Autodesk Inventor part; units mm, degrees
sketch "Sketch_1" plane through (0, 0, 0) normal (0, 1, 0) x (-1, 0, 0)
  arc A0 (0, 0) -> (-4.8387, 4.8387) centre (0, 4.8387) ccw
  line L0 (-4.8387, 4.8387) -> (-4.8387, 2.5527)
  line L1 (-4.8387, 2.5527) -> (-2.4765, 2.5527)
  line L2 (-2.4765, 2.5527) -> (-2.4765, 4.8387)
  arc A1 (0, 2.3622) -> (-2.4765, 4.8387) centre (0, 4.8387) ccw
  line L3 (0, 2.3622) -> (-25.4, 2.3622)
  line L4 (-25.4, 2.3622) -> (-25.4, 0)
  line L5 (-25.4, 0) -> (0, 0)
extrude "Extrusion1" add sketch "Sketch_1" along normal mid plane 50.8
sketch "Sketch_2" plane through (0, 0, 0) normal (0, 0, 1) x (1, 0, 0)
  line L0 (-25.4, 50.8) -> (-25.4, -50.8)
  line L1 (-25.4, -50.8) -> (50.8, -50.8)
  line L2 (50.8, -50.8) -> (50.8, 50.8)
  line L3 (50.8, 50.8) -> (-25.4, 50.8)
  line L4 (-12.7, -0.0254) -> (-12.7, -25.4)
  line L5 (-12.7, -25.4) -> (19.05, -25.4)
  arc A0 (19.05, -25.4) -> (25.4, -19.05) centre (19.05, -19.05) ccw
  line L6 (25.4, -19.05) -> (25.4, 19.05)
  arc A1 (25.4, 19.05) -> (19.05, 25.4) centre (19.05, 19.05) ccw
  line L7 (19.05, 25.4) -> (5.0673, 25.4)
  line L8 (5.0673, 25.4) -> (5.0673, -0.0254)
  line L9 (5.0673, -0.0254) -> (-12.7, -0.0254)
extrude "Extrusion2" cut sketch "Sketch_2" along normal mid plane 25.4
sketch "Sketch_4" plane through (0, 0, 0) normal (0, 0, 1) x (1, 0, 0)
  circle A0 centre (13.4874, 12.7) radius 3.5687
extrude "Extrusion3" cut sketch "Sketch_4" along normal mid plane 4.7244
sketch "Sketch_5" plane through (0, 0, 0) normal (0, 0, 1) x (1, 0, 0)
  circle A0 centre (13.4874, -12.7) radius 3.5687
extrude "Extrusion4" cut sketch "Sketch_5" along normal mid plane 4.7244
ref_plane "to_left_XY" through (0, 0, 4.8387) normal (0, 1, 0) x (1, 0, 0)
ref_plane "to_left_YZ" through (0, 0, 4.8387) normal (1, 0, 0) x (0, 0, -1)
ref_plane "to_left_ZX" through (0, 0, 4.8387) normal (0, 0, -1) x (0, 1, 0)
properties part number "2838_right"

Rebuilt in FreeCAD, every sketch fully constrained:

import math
import FreeCAD as App
import Part
import Sketcher
Q = App.Units.Quantity


def add_polygon(sketch, points):
    """Adds a closed chain of lines whose ends are joined by coincident constraints."""
    first, n = sketch.GeometryCount, len(points)
    for a, b in zip(points, points[1:] + points[:1]):
        sketch.addGeometry(Part.LineSegment(App.Vector(*a, 0), App.Vector(*b, 0)), False)
    for i in range(n):
        sketch.addConstraint(Sketcher.Constraint("Coincident", first + i, 2, first + (i + 1) % n, 1))

doc = App.newDocument("Part")
body = doc.addObject("PartDesign::Body", "Body")

sketch1 = doc.addObject("Sketcher::SketchObject", "Sketch")
body.addObject(sketch1)
sketch1.AttachmentSupport = (doc.XZ_Plane, [""])
sketch1.MapMode = "FlatFace"
sketch1.addGeometry([
    Part.LineSegment(App.Vector(25.4, 0, 0), App.Vector(0, 0, 0)),
    Part.ArcOfCircle(Part.Circle(App.Vector(0, 4.8387, 0), App.Vector(0, 0, 1), 4.8387), math.radians(0), math.radians(270)),
    Part.LineSegment(App.Vector(4.8387, 4.8387, 0), App.Vector(4.8387, 2.5527, 0)),
    Part.LineSegment(App.Vector(4.8387, 2.5527, 0), App.Vector(2.4765, 2.5527, 0)),
    Part.LineSegment(App.Vector(2.4765, 2.5527, 0), App.Vector(2.4765, 4.8387, 0)),
    Part.ArcOfCircle(Part.Circle(App.Vector(0, 4.8387, 0), App.Vector(0, 0, 1), 2.4765), math.radians(0), math.radians(270)),
    Part.LineSegment(App.Vector(0, 2.3622, 0), App.Vector(25.4, 2.3622, 0)),
    Part.LineSegment(App.Vector(25.4, 2.3622, 0), App.Vector(25.4, 0, 0)),
], False)
sketch1.addConstraint([
    Sketcher.Constraint("Tangent", 0, 2, 1, 2),
    Sketcher.Constraint("Tangent", 1, 1, 2, 1),
    Sketcher.Constraint("Coincident", 2, 2, 3, 1),
    Sketcher.Constraint("Coincident", 3, 2, 4, 1),
    Sketcher.Constraint("Tangent", 4, 2, 5, 1),
    Sketcher.Constraint("Tangent", 5, 2, 6, 1),
    Sketcher.Constraint("Coincident", 6, 2, 7, 1),
    Sketcher.Constraint("Coincident", 7, 2, 0, 1),
    Sketcher.Constraint("Horizontal", 0),
    Sketcher.Constraint("Vertical", 2),
    Sketcher.Constraint("Horizontal", 3),
    Sketcher.Constraint("Vertical", 4),
    Sketcher.Constraint("Horizontal", 6),
    Sketcher.Constraint("Vertical", 7),
    Sketcher.Constraint("Coincident", 0, 2, -1, 1),
    Sketcher.Constraint("Coincident", 5, 3, 1, 3),
    Sketcher.Constraint("DistanceX", 0, 2, 0, 1, Q("1 in")),
    Sketcher.Constraint("DistanceY", 2, 2, 2, 1, Q("0.09 in")),
    Sketcher.Constraint("Radius", 1, Q("0.1905 in")),
    Sketcher.Constraint("Radius", 5, Q("0.0975 in")),
])
pad1 = doc.addObject("PartDesign::Pad", "Pad")
body.addObject(pad1)
pad1.Profile = sketch1
pad1.Length = Q("2 in")
pad1.Midplane = True

sketch2 = doc.addObject("Sketcher::SketchObject", "Sketch001")
body.addObject(sketch2)
sketch2.AttachmentSupport = (doc.XY_Plane, [""])
sketch2.MapMode = "FlatFace"
add_polygon(sketch2, [(50.8, 50.8), (-25.4, 50.8), (-25.4, -50.8), (50.8, -50.8)])
sketch2.addGeometry(Part.LineSegment(App.Vector(-12.7, -25.4, 0), App.Vector(-12.7, -0.0254, 0)), False)
sketch2.addGeometry(Part.LineSegment(App.Vector(-12.7, -0.0254, 0), App.Vector(5.0673, -0.0254, 0)), False)
sketch2.addGeometry(Part.LineSegment(App.Vector(5.0673, -0.0254, 0), App.Vector(5.0673, 25.4, 0)), False)
sketch2.addGeometry(Part.LineSegment(App.Vector(5.0673, 25.4, 0), App.Vector(19.05, 25.4, 0)), False)
sketch2.addGeometry(Part.ArcOfCircle(Part.Circle(App.Vector(19.05, 19.05, 0), App.Vector(0, 0, 1), 6.35), math.radians(0), math.radians(90)), False)
sketch2.addGeometry(Part.LineSegment(App.Vector(25.4, 19.05, 0), App.Vector(25.4, -19.05, 0)), False)
sketch2.addGeometry(Part.ArcOfCircle(Part.Circle(App.Vector(19.05, -19.05, 0), App.Vector(0, 0, 1), 6.35), math.radians(-90), math.radians(0)), False)
sketch2.addGeometry(Part.LineSegment(App.Vector(19.05, -25.4, 0), App.Vector(-12.7, -25.4, 0)), False)
sketch2.addConstraint([
    Sketcher.Constraint("Coincident", 4, 2, 5, 1),
    Sketcher.Constraint("Coincident", 5, 2, 6, 1),
    Sketcher.Constraint("Coincident", 6, 2, 7, 1),
    Sketcher.Constraint("Tangent", 7, 2, 8, 2),
    Sketcher.Constraint("Tangent", 8, 1, 9, 1),
    Sketcher.Constraint("Tangent", 9, 2, 10, 2),
    Sketcher.Constraint("Tangent", 10, 1, 11, 1),
    Sketcher.Constraint("Coincident", 11, 2, 4, 1),
    Sketcher.Constraint("Horizontal", 0),
    Sketcher.Constraint("Vertical", 1),
    Sketcher.Constraint("Horizontal", 2),
    Sketcher.Constraint("Vertical", 3),
    Sketcher.Constraint("Vertical", 4),
    Sketcher.Constraint("Horizontal", 5),
    Sketcher.Constraint("Vertical", 6),
    Sketcher.Constraint("Horizontal", 7),
    Sketcher.Constraint("Vertical", 9),
    Sketcher.Constraint("Horizontal", 11),
    Sketcher.Constraint("Equal", 8, 10),
    Sketcher.Constraint("DistanceX", 0, 2, 0, 1, Q("3 in")),
    Sketcher.Constraint("DistanceY", 1, 2, 1, 1, Q("4 in")),
    Sketcher.Constraint("Radius", 8, Q("0.25 in")),
    Sketcher.Constraint("DistanceY", 9, 2, 9, 1, Q("1.5 in")),
    Sketcher.Constraint("DistanceX", 0, 2, -1, 1, Q("1 in")),
    Sketcher.Constraint("DistanceY", -1, 1, 0, 2, Q("2 in")),
    Sketcher.Constraint("DistanceY", -1, 1, 6, 2, Q("1 in")),
    Sketcher.Constraint("DistanceX", -1, 1, 8, 1, Q("1 in")),
    Sketcher.Constraint("DistanceX", 11, 2, 11, 1, Q("1.25 in")),
    Sketcher.Constraint("DistanceY", 4, 1, 4, 2, Q("0.999 in")),
    Sketcher.Constraint("DistanceX", 5, 1, 5, 2, Q("0.6995 in")),
])
pocket1 = doc.addObject("PartDesign::Pocket", "Pocket")
body.addObject(pocket1)
pocket1.Profile = sketch2
pocket1.Length = Q("1 in")
pocket1.Midplane = True

sketch3 = doc.addObject("Sketcher::SketchObject", "Sketch002")
body.addObject(sketch3)
sketch3.AttachmentSupport = (doc.XY_Plane, [""])
sketch3.MapMode = "FlatFace"
sketch3.addGeometry(Part.Circle(App.Vector(13.4874, 12.7, 0), App.Vector(0, 0, 1), 3.5687), False)
sketch3.addConstraint([
    Sketcher.Constraint("Diameter", 0, Q("0.281 in")),
    Sketcher.Constraint("DistanceY", -1, 1, 0, 3, Q("0.5 in")),
    Sketcher.Constraint("DistanceX", -1, 1, 0, 3, Q("0.531 in")),
])
pocket2 = doc.addObject("PartDesign::Pocket", "Pocket001")
body.addObject(pocket2)
pocket2.Profile = sketch3
pocket2.Length = Q("0.186 in")
pocket2.Midplane = True

sketch4 = doc.addObject("Sketcher::SketchObject", "Sketch003")
body.addObject(sketch4)
sketch4.AttachmentSupport = (doc.XY_Plane, [""])
sketch4.MapMode = "FlatFace"
sketch4.addGeometry(Part.Circle(App.Vector(13.4874, -12.7, 0), App.Vector(0, 0, 1), 3.5687), False)
sketch4.addConstraint([
    Sketcher.Constraint("Diameter", 0, Q("0.281 in")),
    Sketcher.Constraint("DistanceY", 0, 3, -1, 1, Q("0.5 in")),
    Sketcher.Constraint("DistanceX", -1, 1, 0, 3, Q("0.531 in")),
])
pocket3 = doc.addObject("PartDesign::Pocket", "Pocket002")
body.addObject(pocket3)
pocket3.Profile = sketch4
pocket3.Length = Q("0.186 in")
pocket3.Midplane = True

doc.recompute()
